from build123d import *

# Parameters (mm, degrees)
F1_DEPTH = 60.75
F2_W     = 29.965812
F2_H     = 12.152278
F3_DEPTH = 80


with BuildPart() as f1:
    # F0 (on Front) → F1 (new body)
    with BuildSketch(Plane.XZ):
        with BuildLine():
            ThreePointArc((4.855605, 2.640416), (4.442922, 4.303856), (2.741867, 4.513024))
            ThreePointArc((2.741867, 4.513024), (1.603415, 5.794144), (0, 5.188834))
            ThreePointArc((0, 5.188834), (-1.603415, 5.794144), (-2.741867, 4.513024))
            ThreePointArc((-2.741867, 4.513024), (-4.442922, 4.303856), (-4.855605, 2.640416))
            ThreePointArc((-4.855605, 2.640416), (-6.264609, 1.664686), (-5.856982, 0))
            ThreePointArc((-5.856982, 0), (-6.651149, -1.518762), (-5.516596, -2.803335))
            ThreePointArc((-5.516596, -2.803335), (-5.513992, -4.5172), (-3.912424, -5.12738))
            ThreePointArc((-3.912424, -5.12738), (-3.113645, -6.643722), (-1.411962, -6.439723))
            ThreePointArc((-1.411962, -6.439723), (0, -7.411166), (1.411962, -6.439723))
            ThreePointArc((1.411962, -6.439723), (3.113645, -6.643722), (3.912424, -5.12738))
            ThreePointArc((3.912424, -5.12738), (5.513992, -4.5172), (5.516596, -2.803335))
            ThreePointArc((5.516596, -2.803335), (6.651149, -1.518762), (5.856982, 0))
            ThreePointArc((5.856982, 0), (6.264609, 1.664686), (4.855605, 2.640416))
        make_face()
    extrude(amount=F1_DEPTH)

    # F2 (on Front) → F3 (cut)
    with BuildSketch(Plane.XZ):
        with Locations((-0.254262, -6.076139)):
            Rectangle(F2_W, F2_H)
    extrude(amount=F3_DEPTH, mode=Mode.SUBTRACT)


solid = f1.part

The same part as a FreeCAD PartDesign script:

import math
import FreeCAD as App
import Part
import Sketcher
from FreeCAD import Vector

doc = App.newDocument("Part")
body = doc.addObject("PartDesign::Body", "Body")

# Sketch on XZ plane
sketch1 = body.newObject("Sketcher::SketchObject", "Sketch")
sketch1.AttachmentSupport = (doc.getObject("XZ_Plane"), [""])
sketch1.MapMode = "FlatFace"
sketch1.addGeometry([
    Part.ArcOfCircle(Part.Circle(Vector(3.440385, 3.172225, 0), Vector(0, 0, 1), 1.511843), math.radians(-20.595139), math.radians(117.51823)),  # 0
    Part.ArcOfCircle(Part.Circle(Vector(1.241607, 4.326232, 0), Vector(0, 0, 1), 1.511844), math.radians(7.097174), math.radians(145.2105)),  # 1
    Part.ArcOfCircle(Part.Circle(Vector(-1.241607, 4.326232, 0), Vector(0, 0, 1), 1.511844), math.radians(34.7895), math.radians(172.902826)),  # 2
    Part.ArcOfCircle(Part.Circle(Vector(-3.440385, 3.172225, 0), Vector(0, 0, 1), 1.511843), math.radians(62.48177), math.radians(200.595139)),  # 3
    Part.ArcOfCircle(Part.Circle(Vector(-4.851011, 1.12858, 0), Vector(0, 0, 1), 1.511843), math.radians(90.174117), math.radians(228.287449)),  # 4
    Part.ArcOfCircle(Part.Circle(Vector(-5.150329, -1.33653, 0), Vector(0, 0, 1), 1.511843), math.radians(117.866414), math.radians(255.979719)),  # 5
    Part.ArcOfCircle(Part.Circle(Vector(-4.269769, -3.658375, 0), Vector(0, 0, 1), 1.511844), math.radians(145.558728), math.radians(283.672027)),  # 6
    Part.ArcOfCircle(Part.Circle(Vector(-2.411057, -5.305051, 0), Vector(0, 0, 1), 1.511844), math.radians(173.251043), math.radians(311.364366)),  # 7
    Part.ArcOfCircle(Part.Circle(Vector(0, -5.899323, 0), Vector(0, 0, 1), 1.511843), math.radians(-159.056667), math.radians(-20.943333)),  # 8
    Part.ArcOfCircle(Part.Circle(Vector(2.411057, -5.305051, 0), Vector(0, 0, 1), 1.511844), math.radians(-131.364366), math.radians(6.748957)),  # 9
    Part.ArcOfCircle(Part.Circle(Vector(4.269769, -3.658375, 0), Vector(0, 0, 1), 1.511844), math.radians(-103.672027), math.radians(34.441272)),  # 10
    Part.ArcOfCircle(Part.Circle(Vector(5.150329, -1.33653, 0), Vector(0, 0, 1), 1.511843), math.radians(-75.979719), math.radians(62.133586)),  # 11
    Part.ArcOfCircle(Part.Circle(Vector(4.851011, 1.12858, 0), Vector(0, 0, 1), 1.511843), math.radians(-48.287449), math.radians(89.825883)),  # 12
], False)
sketch1.addConstraint([
    Sketcher.Constraint("Coincident", 0, 2, 1, 1),
    Sketcher.Constraint("Coincident", 1, 2, 2, 1),
    Sketcher.Constraint("Coincident", 2, 2, 3, 1),
    Sketcher.Constraint("Coincident", 3, 2, 4, 1),
    Sketcher.Constraint("Coincident", 4, 2, 5, 1),
    Sketcher.Constraint("Coincident", 5, 2, 6, 1),
    Sketcher.Constraint("Coincident", 6, 2, 7, 1),
    Sketcher.Constraint("Coincident", 7, 2, 8, 1),
    Sketcher.Constraint("Coincident", 8, 2, 9, 1),
    Sketcher.Constraint("Coincident", 9, 2, 10, 1),
    Sketcher.Constraint("Coincident", 10, 2, 11, 1),
    Sketcher.Constraint("Coincident", 11, 2, 12, 1),
    Sketcher.Constraint("Coincident", 12, 2, 0, 1),
    Sketcher.Constraint("PointOnObject", 8, 3, -2),
    Sketcher.Constraint("PointOnObject", 1, 2, -2),
    Sketcher.Constraint("PointOnObject", 4, 2, -1),
    Sketcher.Constraint("PointOnObject", 11, 2, -1),
    Sketcher.Constraint("Radius", 0, 1.511843),
    Sketcher.Constraint("Radius", 1, 1.511844),
    Sketcher.Constraint("Radius", 2, 1.511844),
    Sketcher.Constraint("Radius", 3, 1.511843),
    Sketcher.Constraint("Radius", 4, 1.511843),
    Sketcher.Constraint("Radius", 5, 1.511843),
    Sketcher.Constraint("Radius", 6, 1.511844),
    Sketcher.Constraint("Radius", 7, 1.511844),
    Sketcher.Constraint("Radius", 8, 1.511843),
    Sketcher.Constraint("Radius", 9, 1.511844),
    Sketcher.Constraint("Radius", 10, 1.511844),
    Sketcher.Constraint("Radius", 11, 1.511843),
    Sketcher.Constraint("Radius", 12, 1.511843),
    Sketcher.Constraint("DistanceY", 6, 3, 3, 3, 6.8306),
    Sketcher.Constraint("DistanceY", 10, 3, 0, 3, 6.8306),
    Sketcher.Constraint("DistanceY", 0, 3, 0, 2, 1.340799),
    Sketcher.Constraint("DistanceY", 3, 3, 2, 2, 1.340799),
    Sketcher.Constraint("DistanceY", 7, 2, 8, 3, 0.5404),
    Sketcher.Constraint("DistanceY", 8, 2, 8, 3, 0.5404),
    Sketcher.Constraint("DistanceY", -1, 1, 1, 3, 4.326232),
    Sketcher.Constraint("DistanceY", -1, 1, 2, 3, 4.326232),
    Sketcher.Constraint("DistanceX", 4, 3, -1, 1, 4.851011),
    Sketcher.Constraint("DistanceY", -1, 1, 4, 3, 1.12858),
    Sketcher.Constraint("DistanceX", 5, 3, -1, 1, 5.150329),
    Sketcher.Constraint("DistanceX", 6, 3, -1, 1, 4.269769),
    Sketcher.Constraint("DistanceY", 7, 3, -1, 1, 5.305051),
    Sketcher.Constraint("DistanceY", 9, 3, -1, 1, 5.305051),
    Sketcher.Constraint("DistanceX", -1, 1, 10, 3, 4.269769),
    Sketcher.Constraint("DistanceX", -1, 1, 11, 3, 5.150329),
    Sketcher.Constraint("DistanceY", 11, 3, -1, 1, 1.33653),
    Sketcher.Constraint("DistanceX", -1, 1, 12, 3, 4.851011),
    Sketcher.Constraint("DistanceY", 6, 2, -1, 1, 5.12738),
    Sketcher.Constraint("DistanceY", 9, 2, -1, 1, 5.12738),
    Sketcher.Constraint("DistanceX", 3, 3, 0, 3, 6.88077),
    Sketcher.Constraint("DistanceX", 5, 3, 2, 3, 3.908722),
])
pad1 = body.newObject("PartDesign::Pad", "Pad")
pad1.Profile = sketch1
pad1.Length = 60.75

# Sketch on XZ plane
sketch2 = body.newObject("Sketcher::SketchObject", "Sketch001")
sketch2.AttachmentSupport = (doc.getObject("XZ_Plane"), [""])
sketch2.MapMode = "FlatFace"
sketch2.addGeometry([
    Part.LineSegment(Vector(-15, 0, 0), Vector(-15, -12, 0)),
    Part.LineSegment(Vector(-15, -12, 0), Vector(15, -12, 0)),
    Part.LineSegment(Vector(15, -12, 0), Vector(15, 0, 0)),
    Part.LineSegment(Vector(15, 0, 0), Vector(-15, 0, 0)),
], False)
sketch2.addConstraint([
    Sketcher.Constraint("Coincident", 0, 2, 1, 1),
    Sketcher.Constraint("Coincident", 1, 2, 2, 1),
    Sketcher.Constraint("Coincident", 2, 2, 3, 1),
    Sketcher.Constraint("Coincident", 3, 2, 0, 1),
    Sketcher.Constraint("Vertical", 0),
    Sketcher.Constraint("Horizontal", 1),
    Sketcher.Constraint("Vertical", 2),
    Sketcher.Constraint("Horizontal", 3),
    Sketcher.Constraint("PointOnObject", 2, 2, -1),
    Sketcher.Constraint("DistanceX", 1, 1, 1, 2, 29.965812),
    Sketcher.Constraint("DistanceY", 0, 2, 0, 1, 12.152278),
    Sketcher.Constraint("DistanceX", 0, 2, -1, 1, 15.237168),
])
pocket1 = body.newObject("PartDesign::Pocket", "Pocket")
pocket1.Profile = sketch2
pocket1.Length = 80
pocket1.Reversed = True

doc.recompute()
